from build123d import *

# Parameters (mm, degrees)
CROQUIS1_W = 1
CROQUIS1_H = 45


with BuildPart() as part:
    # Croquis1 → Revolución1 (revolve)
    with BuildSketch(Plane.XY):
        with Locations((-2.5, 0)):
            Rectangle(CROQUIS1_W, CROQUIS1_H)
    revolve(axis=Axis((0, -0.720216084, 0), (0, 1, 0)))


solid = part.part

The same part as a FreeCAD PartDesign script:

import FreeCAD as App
import Part
import Sketcher


def add_polygon(sketch, points):
    """Adds a closed chain of lines whose ends are joined by coincident constraints."""
    first, n = sketch.GeometryCount, len(points)
    for a, b in zip(points, points[1:] + points[:1]):
        sketch.addGeometry(Part.LineSegment(App.Vector(*a, 0), App.Vector(*b, 0)), False)
    for i in range(n):
        sketch.addConstraint(Sketcher.Constraint("Coincident", first + i, 2, first + (i + 1) % n, 1))

doc = App.newDocument("Part")
params = doc.addObject("Spreadsheet::Sheet", "Params")
for row, (alias, value) in enumerate([
    ("sketch1_width", "1 mm"),
    ("sketch1_height", "45 mm"),
    ("revolution_angle", "360 deg"),
], start=1):
    params.set(f"A{row}", alias)
    params.set(f"B{row}", "=" + value)
    params.setAlias(f"B{row}", alias)

body = doc.addObject("PartDesign::Body", "Body")

sketch1 = body.newObject("Sketcher::SketchObject", "Sketch")
sketch1.AttachmentSupport = (doc.getObject("XY_Plane"), [""])
sketch1.MapMode = "FlatFace"
add_polygon(sketch1, [(-3, 22.5), (-3, -22.5), (-2, -22.5), (-2, 22.5)])
sketch1.addConstraint([
    Sketcher.Constraint("Vertical", 0),
    Sketcher.Constraint("Horizontal", 1),
    Sketcher.Constraint("Vertical", 2),
    Sketcher.Constraint("Horizontal", 3),
    Sketcher.Constraint("DistanceX", 1, 1, 1, 2, 1.0),
    Sketcher.Constraint("DistanceY", 0, 2, 0, 1, 45.0),
    Sketcher.Constraint("DistanceX", 0, 2, -1, 1, 3.0),
    Sketcher.Constraint("DistanceY", 0, 2, -1, 1, 22.5),
])
sketch1.setExpression("Constraints[8]", "Params.sketch1_width")
sketch1.setExpression("Constraints[9]", "Params.sketch1_height")
revolution = body.newObject("PartDesign::Revolution", "Revolution")
revolution.Profile = sketch1
revolution.ReferenceAxis = (sketch1, ["V_Axis"])
revolution.setExpression("Angle", "Params.revolution_angle")

doc.recompute()
